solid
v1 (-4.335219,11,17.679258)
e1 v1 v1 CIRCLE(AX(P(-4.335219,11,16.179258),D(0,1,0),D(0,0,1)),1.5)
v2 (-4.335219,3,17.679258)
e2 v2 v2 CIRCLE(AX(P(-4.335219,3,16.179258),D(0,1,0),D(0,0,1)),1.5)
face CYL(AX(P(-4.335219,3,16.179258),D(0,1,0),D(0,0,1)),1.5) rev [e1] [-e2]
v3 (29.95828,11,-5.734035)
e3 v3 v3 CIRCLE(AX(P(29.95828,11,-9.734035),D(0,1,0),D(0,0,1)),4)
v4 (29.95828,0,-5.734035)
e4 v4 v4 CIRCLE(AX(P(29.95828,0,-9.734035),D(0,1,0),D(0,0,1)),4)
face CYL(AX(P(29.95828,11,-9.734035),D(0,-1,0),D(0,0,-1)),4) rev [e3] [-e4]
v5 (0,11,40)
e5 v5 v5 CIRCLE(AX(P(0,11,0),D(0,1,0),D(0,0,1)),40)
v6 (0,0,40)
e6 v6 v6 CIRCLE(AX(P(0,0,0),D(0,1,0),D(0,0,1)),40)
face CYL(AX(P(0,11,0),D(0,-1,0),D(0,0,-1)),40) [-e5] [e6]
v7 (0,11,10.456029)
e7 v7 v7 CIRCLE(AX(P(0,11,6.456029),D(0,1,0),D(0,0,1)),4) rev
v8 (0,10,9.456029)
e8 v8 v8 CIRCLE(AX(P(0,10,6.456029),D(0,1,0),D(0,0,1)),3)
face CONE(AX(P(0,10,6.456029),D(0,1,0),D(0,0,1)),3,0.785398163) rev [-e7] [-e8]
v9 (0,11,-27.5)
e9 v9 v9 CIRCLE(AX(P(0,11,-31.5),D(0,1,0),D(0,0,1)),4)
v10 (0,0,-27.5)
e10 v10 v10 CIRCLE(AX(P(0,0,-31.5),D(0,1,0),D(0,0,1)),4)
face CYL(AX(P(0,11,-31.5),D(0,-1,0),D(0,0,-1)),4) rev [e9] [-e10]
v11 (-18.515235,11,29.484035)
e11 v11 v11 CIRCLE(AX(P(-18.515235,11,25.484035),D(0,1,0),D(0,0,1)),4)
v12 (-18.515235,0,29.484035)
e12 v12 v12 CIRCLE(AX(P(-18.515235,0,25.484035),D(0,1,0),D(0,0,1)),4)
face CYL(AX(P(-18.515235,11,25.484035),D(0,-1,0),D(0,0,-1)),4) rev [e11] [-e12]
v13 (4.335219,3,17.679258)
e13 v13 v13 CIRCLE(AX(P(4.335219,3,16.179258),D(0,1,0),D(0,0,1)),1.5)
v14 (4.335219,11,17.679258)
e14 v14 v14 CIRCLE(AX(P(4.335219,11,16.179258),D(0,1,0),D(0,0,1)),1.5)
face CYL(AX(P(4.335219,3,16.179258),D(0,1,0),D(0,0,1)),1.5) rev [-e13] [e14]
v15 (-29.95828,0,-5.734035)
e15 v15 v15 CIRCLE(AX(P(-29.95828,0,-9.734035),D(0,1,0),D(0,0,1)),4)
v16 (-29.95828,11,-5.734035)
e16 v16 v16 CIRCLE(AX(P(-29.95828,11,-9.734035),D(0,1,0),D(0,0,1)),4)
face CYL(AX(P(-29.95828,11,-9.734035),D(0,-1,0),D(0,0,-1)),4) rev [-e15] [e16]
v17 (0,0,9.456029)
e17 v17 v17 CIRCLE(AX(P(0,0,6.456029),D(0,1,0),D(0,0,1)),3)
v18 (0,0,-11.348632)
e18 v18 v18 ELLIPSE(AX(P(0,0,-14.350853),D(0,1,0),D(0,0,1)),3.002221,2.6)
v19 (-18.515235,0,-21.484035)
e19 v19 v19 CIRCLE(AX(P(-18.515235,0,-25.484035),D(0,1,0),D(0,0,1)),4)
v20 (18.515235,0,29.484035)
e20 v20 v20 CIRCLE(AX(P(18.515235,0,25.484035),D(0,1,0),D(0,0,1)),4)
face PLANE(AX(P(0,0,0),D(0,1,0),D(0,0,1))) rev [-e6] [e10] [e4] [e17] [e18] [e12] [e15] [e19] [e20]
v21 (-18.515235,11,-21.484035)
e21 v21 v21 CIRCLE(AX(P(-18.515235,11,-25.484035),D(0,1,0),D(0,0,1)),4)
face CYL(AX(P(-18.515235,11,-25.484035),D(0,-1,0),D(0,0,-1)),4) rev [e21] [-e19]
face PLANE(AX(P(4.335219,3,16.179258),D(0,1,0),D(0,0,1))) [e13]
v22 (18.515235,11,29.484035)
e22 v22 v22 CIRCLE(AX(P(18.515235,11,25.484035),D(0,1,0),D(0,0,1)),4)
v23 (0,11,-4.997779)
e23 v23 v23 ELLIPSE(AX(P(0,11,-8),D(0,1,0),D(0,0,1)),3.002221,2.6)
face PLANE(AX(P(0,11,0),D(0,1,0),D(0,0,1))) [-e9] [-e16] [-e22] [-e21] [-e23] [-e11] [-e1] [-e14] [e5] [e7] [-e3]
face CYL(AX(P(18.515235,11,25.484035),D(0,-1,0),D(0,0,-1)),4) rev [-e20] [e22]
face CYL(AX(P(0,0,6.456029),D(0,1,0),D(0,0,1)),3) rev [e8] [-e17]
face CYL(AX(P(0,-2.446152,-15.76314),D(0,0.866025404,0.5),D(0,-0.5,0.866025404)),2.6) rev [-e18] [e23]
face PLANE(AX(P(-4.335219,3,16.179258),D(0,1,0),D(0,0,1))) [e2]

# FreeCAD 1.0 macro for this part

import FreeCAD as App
import Part
import Sketcher
from FreeCAD import Vector


def edges_at(feature, points):
    """Names of the edges that pass closest to the given points."""
    edges = feature.Shape.Edges
    near = lambda p: min(range(len(edges)), key=lambda i: edges[i].distToShape(Part.Vertex(*p))[0])
    return sorted({f"Edge{near(p) + 1}" for p in points})

doc = App.newDocument("Part")
body = doc.addObject("PartDesign::Body", "Body")

# Sketch on XZ plane
sketch1 = body.newObject("Sketcher::SketchObject", "Sketch")
sketch1.AttachmentSupport = (doc.getObject("XZ_Plane"), [""])
sketch1.MapMode = "FlatFace"
sketch1.addGeometry([
    Part.Circle(Vector(0, 0, 0), Vector(0, 0, 1), 40),  # 0
    Part.Circle(Vector(-18.5, -25.5, 0), Vector(0, 0, 1), 4),  # 1
    Part.Circle(Vector(-30, -9.7, 0), Vector(0, 0, 1), 4),  # 2
    Part.Circle(Vector(-18.5, 25.5, 0), Vector(0, 0, 1), 4),  # 3
    Part.Circle(Vector(0, -31.5, 0), Vector(0, 0, 1), 4),  # 4
    Part.Circle(Vector(30, -9.7, 0), Vector(0, 0, 1), 4),  # 5
    Part.Circle(Vector(18.5, 25.5, 0), Vector(0, 0, 1), 4),  # 6
], False)
sketch1.addConstraint([
    Sketcher.Constraint("Coincident", 0, 3, -1, 1),
    Sketcher.Constraint("Equal", 1, 2),
    Sketcher.Constraint("Equal", 2, 3),
    Sketcher.Constraint("Equal", 3, 4),
    Sketcher.Constraint("Equal", 4, 5),
    Sketcher.Constraint("Equal", 5, 6),
    Sketcher.Constraint("Symmetric", 1, 3, 6, 3, -1, 1),
    Sketcher.Constraint("Symmetric", 2, 3, 5, 3, -2),
    Sketcher.Constraint("Symmetric", 3, 3, 6, 3, -2),
    Sketcher.Constraint("PointOnObject", 4, 3, -2),
    Sketcher.Constraint("Diameter", 0, 80.0),
    Sketcher.Constraint("Diameter", 1, 8.0),
    Sketcher.Constraint("DistanceY", 4, 3, -1, 1, 31.5),
    Sketcher.Constraint("DistanceY", 1, 3, 2, 3, 15.75),
    Sketcher.Constraint("DistanceX", 2, 3, -1, 1, 29.95828),
    Sketcher.Constraint("DistanceY", 2, 3, 3, 3, 35.218071),
    Sketcher.Constraint("DistanceX", 3, 3, 6, 3, 37.030471),
])
pad1 = body.newObject("PartDesign::Pad", "Pad")
pad1.Profile = sketch1
pad1.Length = 11
pad1.Reversed = True

# Sketch on XZ plane
sketch2 = body.newObject("Sketcher::SketchObject", "Sketch001")
sketch2.AttachmentSupport = (doc.getObject("XZ_Plane"), [""])
sketch2.MapMode = "FlatFace"
sketch2.AttachmentOffset = App.Placement(Vector(0, 0, -11), App.Rotation())
sketch2.addGeometry(Part.Circle(Vector(0, 6.5, 0), Vector(0, 0, 1), 3), False)
sketch2.addConstraint([
    Sketcher.Constraint("PointOnObject", 0, 3, -2),
    Sketcher.Constraint("Diameter", 0, 6.0),
    Sketcher.Constraint("DistanceY", -1, 1, 0, 3, 6.456029),
])
pocket1 = body.newObject("PartDesign::Pocket", "Pocket")
pocket1.Profile = sketch2
pocket1.Type = "ThroughAll"
pocket1.Reversed = True
doc.recompute()

chamfer = body.newObject("PartDesign::Chamfer", "Chamfer")
chamfer.Base = (pocket1, edges_at(pocket1, [(0, 11, 3.456)]))
chamfer.Size = 1

# Sketch on an angled plane
sketch3 = body.newObject("Sketcher::SketchObject", "Sketch002")
sketch3.Placement = App.Placement(Vector(0, 0, 0), App.Rotation(Vector(1, 0, 0), Vector(0, 0.5, -0.866025404), Vector(0, 0.866025404, 0.5), "ZXY"))
sketch3.addGeometry(Part.Circle(Vector(0, 12.4, 0), Vector(0, 0, 1), 2.6), False)
sketch3.addConstraint([
    Sketcher.Constraint("PointOnObject", 0, 3, -2),
    Sketcher.Constraint("Diameter", 0, 5.2),
    Sketcher.Constraint("DistanceY", -1, 1, 0, 3, 12.428203),
])
pocket2 = body.newObject("PartDesign::Pocket", "Pocket001")
pocket2.Profile = sketch3
pocket2.Length = 20
pocket2.Midplane = True

# Sketch on XZ plane
sketch4 = body.newObject("Sketcher::SketchObject", "Sketch003")
sketch4.AttachmentSupport = (doc.getObject("XZ_Plane"), [""])
sketch4.MapMode = "FlatFace"
sketch4.AttachmentOffset = App.Placement(Vector(0, 0, -11), App.Rotation())
sketch4.addGeometry([
    Part.Circle(Vector(-4.3, 16.2, 0), Vector(0, 0, 1), 1.5),
    Part.Circle(Vector(4.3, 16.2, 0), Vector(0, 0, 1), 1.5),
], False)
sketch4.addConstraint([
    Sketcher.Constraint("Equal", 0, 1),
    Sketcher.Constraint("Symmetric", 0, 3, 1, 3, -2),
    Sketcher.Constraint("Diameter", 0, 3.0),
    Sketcher.Constraint("DistanceX", 0, 3, -1, 1, 4.335219),
    Sketcher.Constraint("DistanceY", -1, 1, 0, 3, 16.179258),
])
pocket3 = body.newObject("PartDesign::Pocket", "Pocket002")
pocket3.Profile = sketch4
pocket3.Length = 8
pocket3.Reversed = True

doc.recompute()
